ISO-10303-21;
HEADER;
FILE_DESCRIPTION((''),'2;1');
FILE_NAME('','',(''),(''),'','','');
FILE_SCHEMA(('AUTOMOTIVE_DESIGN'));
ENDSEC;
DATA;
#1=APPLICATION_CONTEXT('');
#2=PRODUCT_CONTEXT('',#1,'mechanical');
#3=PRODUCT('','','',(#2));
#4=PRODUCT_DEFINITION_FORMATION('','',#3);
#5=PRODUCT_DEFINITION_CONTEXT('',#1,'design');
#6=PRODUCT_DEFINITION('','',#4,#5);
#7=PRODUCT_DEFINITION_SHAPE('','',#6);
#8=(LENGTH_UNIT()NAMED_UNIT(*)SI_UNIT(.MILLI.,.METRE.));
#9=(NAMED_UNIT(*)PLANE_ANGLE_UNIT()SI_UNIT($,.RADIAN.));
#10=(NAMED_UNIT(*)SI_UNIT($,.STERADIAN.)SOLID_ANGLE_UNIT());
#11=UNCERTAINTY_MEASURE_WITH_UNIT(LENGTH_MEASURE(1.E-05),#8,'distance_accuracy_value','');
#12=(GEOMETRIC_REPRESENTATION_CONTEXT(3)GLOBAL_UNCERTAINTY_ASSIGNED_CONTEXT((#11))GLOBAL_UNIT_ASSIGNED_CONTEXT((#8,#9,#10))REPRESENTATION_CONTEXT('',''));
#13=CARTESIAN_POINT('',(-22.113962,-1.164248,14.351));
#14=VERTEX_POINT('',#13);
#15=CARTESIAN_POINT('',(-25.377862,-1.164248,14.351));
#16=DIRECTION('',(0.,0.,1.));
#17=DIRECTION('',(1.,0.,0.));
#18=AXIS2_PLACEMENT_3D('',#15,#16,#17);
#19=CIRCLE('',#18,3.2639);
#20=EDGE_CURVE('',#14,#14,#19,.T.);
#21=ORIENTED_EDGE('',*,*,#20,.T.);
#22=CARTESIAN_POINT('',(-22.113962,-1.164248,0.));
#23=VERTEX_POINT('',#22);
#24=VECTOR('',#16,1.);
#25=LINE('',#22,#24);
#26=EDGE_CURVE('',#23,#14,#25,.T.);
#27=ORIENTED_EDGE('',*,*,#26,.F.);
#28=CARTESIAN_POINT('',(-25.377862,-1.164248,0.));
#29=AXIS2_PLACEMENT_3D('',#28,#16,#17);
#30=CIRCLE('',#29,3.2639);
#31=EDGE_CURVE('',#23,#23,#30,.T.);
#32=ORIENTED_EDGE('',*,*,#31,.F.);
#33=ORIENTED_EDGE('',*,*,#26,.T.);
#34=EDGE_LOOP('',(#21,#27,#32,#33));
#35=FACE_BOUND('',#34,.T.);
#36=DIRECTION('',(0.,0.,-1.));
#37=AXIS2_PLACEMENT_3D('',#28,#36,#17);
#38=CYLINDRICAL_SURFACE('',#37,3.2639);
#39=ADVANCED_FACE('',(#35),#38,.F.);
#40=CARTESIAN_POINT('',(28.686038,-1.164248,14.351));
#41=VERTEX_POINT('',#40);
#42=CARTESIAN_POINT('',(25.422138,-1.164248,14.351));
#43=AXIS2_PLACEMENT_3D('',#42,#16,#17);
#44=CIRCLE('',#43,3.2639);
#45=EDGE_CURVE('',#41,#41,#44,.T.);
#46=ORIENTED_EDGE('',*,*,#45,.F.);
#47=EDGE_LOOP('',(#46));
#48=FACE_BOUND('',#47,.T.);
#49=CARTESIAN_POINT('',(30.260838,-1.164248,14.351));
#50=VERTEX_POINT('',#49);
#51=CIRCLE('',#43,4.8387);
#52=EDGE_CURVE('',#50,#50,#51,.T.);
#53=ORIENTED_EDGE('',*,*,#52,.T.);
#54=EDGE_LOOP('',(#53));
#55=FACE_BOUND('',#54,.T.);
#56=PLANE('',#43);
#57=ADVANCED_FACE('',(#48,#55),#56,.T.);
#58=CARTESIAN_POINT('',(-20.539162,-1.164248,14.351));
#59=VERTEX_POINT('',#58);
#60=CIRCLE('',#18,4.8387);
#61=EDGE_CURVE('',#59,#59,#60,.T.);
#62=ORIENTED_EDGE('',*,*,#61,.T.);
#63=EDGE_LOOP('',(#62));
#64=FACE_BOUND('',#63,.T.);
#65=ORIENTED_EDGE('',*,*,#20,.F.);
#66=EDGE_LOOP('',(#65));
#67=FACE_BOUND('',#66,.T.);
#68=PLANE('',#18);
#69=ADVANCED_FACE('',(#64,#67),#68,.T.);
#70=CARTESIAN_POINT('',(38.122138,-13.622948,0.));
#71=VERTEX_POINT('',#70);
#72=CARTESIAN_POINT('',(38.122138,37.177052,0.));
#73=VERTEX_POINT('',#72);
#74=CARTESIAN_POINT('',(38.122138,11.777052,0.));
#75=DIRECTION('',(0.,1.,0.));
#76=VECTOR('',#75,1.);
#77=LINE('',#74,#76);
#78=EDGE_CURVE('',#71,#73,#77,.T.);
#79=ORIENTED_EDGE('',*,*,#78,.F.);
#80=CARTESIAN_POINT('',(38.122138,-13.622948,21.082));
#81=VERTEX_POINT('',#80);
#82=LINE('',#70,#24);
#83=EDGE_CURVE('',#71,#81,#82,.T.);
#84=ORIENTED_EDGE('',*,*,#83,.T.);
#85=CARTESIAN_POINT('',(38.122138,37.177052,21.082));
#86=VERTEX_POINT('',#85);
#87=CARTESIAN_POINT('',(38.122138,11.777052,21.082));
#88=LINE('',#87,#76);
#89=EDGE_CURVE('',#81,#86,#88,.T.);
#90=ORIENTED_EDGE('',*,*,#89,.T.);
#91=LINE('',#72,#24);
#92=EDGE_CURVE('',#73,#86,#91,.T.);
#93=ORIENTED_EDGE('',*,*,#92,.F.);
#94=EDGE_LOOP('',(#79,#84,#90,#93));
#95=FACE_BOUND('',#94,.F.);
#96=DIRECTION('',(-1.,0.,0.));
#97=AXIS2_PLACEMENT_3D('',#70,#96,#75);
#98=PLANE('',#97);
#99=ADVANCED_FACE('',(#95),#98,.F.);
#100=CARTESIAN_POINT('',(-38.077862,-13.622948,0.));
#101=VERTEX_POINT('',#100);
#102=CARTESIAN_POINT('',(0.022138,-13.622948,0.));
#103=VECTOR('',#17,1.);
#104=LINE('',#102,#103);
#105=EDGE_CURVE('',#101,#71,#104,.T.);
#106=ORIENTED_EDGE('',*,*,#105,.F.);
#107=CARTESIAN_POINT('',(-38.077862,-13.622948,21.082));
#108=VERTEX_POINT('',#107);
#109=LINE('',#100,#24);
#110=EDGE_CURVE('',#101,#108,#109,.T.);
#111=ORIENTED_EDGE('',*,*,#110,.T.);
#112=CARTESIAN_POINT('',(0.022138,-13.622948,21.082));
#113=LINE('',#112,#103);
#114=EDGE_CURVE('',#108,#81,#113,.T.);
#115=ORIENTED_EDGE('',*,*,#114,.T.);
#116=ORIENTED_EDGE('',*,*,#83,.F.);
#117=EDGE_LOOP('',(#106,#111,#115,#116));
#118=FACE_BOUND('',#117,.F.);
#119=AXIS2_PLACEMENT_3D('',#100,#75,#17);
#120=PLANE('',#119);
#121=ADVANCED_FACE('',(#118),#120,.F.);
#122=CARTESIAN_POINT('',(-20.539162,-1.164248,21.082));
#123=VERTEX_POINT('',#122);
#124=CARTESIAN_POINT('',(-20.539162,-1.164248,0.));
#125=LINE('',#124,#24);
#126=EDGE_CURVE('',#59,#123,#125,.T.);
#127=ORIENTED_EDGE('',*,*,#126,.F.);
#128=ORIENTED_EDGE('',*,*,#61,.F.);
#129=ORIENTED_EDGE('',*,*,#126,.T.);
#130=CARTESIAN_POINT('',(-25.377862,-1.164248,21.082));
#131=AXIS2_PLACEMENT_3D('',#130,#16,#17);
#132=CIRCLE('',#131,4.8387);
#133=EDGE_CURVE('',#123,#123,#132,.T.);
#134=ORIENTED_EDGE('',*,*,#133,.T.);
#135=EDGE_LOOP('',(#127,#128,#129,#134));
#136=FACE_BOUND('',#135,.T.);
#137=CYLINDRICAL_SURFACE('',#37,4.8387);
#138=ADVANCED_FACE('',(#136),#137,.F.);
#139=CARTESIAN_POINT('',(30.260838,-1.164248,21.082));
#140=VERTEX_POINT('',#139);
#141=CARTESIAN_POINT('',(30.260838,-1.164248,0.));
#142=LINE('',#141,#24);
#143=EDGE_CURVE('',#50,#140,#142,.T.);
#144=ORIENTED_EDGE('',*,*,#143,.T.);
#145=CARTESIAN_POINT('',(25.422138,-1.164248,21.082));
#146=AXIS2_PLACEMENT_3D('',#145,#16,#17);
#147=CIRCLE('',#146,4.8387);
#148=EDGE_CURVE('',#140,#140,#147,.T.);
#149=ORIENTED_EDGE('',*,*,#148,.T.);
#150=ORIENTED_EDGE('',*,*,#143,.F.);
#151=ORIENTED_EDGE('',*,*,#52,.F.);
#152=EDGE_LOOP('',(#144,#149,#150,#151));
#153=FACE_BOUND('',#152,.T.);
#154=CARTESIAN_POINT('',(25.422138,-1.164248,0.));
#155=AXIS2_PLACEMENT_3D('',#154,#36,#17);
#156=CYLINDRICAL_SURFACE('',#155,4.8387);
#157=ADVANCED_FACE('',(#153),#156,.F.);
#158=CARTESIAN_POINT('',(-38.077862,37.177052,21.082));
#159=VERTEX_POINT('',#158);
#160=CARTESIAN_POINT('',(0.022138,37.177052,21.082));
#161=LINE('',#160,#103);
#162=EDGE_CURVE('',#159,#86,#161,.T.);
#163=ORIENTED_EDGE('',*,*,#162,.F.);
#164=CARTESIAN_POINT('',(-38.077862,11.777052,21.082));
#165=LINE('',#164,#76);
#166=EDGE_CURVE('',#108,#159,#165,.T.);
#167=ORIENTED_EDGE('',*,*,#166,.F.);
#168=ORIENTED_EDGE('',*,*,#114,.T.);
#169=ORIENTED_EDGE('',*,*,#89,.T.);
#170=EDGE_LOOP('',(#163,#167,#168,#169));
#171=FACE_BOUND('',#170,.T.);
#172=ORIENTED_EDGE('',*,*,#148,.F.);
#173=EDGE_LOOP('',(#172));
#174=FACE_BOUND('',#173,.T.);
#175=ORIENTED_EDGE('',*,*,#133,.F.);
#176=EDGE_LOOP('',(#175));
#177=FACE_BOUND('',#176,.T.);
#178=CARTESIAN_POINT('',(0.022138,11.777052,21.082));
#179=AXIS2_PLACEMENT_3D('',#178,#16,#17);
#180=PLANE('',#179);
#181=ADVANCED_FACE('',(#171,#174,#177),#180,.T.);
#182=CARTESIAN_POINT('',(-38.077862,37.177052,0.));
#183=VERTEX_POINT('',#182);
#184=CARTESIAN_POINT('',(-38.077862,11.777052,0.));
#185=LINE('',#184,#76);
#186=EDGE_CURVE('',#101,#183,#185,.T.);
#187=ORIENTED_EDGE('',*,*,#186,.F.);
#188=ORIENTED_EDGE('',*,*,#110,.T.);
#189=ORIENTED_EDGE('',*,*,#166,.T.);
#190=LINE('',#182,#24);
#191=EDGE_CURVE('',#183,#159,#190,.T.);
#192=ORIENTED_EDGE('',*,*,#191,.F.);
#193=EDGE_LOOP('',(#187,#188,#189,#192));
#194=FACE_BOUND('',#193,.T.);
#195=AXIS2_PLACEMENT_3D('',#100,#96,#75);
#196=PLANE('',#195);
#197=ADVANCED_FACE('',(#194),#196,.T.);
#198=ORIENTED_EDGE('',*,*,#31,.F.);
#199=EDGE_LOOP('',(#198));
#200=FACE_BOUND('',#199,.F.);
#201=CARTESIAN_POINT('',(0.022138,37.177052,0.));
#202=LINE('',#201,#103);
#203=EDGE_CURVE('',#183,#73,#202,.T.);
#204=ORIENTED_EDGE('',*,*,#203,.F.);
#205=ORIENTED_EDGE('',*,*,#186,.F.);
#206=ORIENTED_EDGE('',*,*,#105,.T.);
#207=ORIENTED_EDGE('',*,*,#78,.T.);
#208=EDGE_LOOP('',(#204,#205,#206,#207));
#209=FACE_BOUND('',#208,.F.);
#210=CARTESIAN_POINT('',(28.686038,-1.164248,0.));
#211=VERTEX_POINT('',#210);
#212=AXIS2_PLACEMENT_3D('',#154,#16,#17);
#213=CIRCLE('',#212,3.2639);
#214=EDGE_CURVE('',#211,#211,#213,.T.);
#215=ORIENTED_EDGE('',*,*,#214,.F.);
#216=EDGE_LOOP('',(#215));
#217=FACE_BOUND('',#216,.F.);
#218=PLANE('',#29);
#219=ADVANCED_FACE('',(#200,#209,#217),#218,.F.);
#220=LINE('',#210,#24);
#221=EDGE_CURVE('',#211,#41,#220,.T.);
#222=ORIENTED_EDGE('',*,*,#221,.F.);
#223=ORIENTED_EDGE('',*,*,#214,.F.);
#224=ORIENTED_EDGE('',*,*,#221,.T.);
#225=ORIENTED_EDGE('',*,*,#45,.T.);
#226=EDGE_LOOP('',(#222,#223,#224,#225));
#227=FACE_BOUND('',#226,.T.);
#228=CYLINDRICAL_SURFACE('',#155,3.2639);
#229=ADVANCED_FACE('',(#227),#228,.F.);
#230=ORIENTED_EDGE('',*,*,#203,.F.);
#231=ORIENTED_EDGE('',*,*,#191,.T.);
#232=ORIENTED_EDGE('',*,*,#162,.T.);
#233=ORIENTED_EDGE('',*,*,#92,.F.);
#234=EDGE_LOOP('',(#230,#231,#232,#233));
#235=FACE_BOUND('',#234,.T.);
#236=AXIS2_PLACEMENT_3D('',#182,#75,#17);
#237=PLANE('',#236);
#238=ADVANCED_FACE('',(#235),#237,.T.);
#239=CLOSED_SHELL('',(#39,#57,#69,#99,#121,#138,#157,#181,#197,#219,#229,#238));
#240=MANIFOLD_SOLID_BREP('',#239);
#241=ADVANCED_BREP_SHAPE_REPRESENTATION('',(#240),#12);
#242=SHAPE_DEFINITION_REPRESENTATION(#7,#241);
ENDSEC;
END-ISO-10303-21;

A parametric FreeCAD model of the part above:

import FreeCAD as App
import Part
import Sketcher

V = App.Vector
Q = App.Units.Quantity


def add_polygon(sketch, points):
    """Adds a closed chain of lines whose ends are joined by coincident constraints."""
    first, n = sketch.GeometryCount, len(points)
    for a, b in zip(points, points[1:] + points[:1]):
        sketch.addGeometry(Part.LineSegment(App.Vector(*a, 0), App.Vector(*b, 0)), False)
    for i in range(n):
        sketch.addConstraint(Sketcher.Constraint("Coincident", first + i, 2, first + (i + 1) % n, 1))

doc = App.newDocument("Part")
body = doc.addObject("PartDesign::Body", "Body")

# Sketch on XY plane
sketch1 = doc.addObject("Sketcher::SketchObject", "Sketch")
body.addObject(sketch1)
sketch1.AttachmentSupport = (doc.XY_Plane, [""])
sketch1.MapMode = "FlatFace"
add_polygon(sketch1, [(-38.1, 37.2), (-38.1, -13.6), (38.1, -13.6), (38.1, 37.2)])  # lines 0-3
sketch1.addGeometry(Part.Circle(V(-25.4, -1.2, 0), V(0, 0, 1), 4.8), False)  # 4
sketch1.addGeometry(Part.Circle(V(25.4, -1.2, 0), V(0, 0, 1), 4.8), False)  # 5
sketch1.addConstraint([
    Sketcher.Constraint("Vertical", 0),
    Sketcher.Constraint("Horizontal", 1),
    Sketcher.Constraint("Vertical", 2),
    Sketcher.Constraint("Horizontal", 3),
    Sketcher.Constraint("Equal", 4, 5),
    Sketcher.Constraint("Horizontal", 4, 3, 5, 3),
    Sketcher.Constraint("DistanceX", 1, 1, 1, 2, Q("3 in")),
    Sketcher.Constraint("DistanceY", 0, 2, 0, 1, Q("2 in")),
    Sketcher.Constraint("Diameter", 4, Q("0.381 in")),
    Sketcher.Constraint("DistanceX", 4, 3, 5, 3, Q("2 in")),
    Sketcher.Constraint("DistanceX", 0, 2, 4, 3, Q("0.5 in")),
    Sketcher.Constraint("DistanceY", 0, 2, 4, 3, Q("0.4905 in")),
    Sketcher.Constraint("DistanceX", -1, 1, 5, 3, 25.422138),
    Sketcher.Constraint("DistanceY", 4, 3, -1, 1, 1.164248),
])
pad1 = doc.addObject("PartDesign::Pad", "Pad")
body.addObject(pad1)
pad1.Profile = sketch1
pad1.Length = Q("0.83 in")

# Sketch on XY plane
sketch2 = doc.addObject("Sketcher::SketchObject", "Sketch001")
body.addObject(sketch2)
sketch2.AttachmentSupport = (doc.XY_Plane, [""])
sketch2.MapMode = "FlatFace"
sketch2.addGeometry([
    Part.Circle(V(-25.4, -1.2, 0), V(0, 0, 1), 4.8),
    Part.Circle(V(-25.4, -1.2, 0), V(0, 0, 1), 3.3),
    Part.Circle(V(25.4, -1.2, 0), V(0, 0, 1), 4.8),
    Part.Circle(V(25.4, -1.2, 0), V(0, 0, 1), 3.3),
], False)
sketch2.addConstraint([
    Sketcher.Constraint("Coincident", 1, 3, 0, 3),
    Sketcher.Constraint("Coincident", 3, 3, 2, 3),
    Sketcher.Constraint("Equal", 0, 2),
    Sketcher.Constraint("Equal", 1, 3),
    Sketcher.Constraint("Horizontal", 1, 3, 2, 3),
    Sketcher.Constraint("Diameter", 0, Q("0.381 in")),
    Sketcher.Constraint("Diameter", 1, Q("0.257 in")),
    Sketcher.Constraint("DistanceX", 0, 3, 2, 3, Q("2 in")),
    Sketcher.Constraint("DistanceX", -1, 1, 2, 3, 25.422138),
    Sketcher.Constraint("DistanceY", 0, 3, -1, 1, 1.164248),
])
pad2 = doc.addObject("PartDesign::Pad", "Pad001")
body.addObject(pad2)
pad2.Profile = sketch2
pad2.Length = Q("0.565 in")

doc.recompute()
